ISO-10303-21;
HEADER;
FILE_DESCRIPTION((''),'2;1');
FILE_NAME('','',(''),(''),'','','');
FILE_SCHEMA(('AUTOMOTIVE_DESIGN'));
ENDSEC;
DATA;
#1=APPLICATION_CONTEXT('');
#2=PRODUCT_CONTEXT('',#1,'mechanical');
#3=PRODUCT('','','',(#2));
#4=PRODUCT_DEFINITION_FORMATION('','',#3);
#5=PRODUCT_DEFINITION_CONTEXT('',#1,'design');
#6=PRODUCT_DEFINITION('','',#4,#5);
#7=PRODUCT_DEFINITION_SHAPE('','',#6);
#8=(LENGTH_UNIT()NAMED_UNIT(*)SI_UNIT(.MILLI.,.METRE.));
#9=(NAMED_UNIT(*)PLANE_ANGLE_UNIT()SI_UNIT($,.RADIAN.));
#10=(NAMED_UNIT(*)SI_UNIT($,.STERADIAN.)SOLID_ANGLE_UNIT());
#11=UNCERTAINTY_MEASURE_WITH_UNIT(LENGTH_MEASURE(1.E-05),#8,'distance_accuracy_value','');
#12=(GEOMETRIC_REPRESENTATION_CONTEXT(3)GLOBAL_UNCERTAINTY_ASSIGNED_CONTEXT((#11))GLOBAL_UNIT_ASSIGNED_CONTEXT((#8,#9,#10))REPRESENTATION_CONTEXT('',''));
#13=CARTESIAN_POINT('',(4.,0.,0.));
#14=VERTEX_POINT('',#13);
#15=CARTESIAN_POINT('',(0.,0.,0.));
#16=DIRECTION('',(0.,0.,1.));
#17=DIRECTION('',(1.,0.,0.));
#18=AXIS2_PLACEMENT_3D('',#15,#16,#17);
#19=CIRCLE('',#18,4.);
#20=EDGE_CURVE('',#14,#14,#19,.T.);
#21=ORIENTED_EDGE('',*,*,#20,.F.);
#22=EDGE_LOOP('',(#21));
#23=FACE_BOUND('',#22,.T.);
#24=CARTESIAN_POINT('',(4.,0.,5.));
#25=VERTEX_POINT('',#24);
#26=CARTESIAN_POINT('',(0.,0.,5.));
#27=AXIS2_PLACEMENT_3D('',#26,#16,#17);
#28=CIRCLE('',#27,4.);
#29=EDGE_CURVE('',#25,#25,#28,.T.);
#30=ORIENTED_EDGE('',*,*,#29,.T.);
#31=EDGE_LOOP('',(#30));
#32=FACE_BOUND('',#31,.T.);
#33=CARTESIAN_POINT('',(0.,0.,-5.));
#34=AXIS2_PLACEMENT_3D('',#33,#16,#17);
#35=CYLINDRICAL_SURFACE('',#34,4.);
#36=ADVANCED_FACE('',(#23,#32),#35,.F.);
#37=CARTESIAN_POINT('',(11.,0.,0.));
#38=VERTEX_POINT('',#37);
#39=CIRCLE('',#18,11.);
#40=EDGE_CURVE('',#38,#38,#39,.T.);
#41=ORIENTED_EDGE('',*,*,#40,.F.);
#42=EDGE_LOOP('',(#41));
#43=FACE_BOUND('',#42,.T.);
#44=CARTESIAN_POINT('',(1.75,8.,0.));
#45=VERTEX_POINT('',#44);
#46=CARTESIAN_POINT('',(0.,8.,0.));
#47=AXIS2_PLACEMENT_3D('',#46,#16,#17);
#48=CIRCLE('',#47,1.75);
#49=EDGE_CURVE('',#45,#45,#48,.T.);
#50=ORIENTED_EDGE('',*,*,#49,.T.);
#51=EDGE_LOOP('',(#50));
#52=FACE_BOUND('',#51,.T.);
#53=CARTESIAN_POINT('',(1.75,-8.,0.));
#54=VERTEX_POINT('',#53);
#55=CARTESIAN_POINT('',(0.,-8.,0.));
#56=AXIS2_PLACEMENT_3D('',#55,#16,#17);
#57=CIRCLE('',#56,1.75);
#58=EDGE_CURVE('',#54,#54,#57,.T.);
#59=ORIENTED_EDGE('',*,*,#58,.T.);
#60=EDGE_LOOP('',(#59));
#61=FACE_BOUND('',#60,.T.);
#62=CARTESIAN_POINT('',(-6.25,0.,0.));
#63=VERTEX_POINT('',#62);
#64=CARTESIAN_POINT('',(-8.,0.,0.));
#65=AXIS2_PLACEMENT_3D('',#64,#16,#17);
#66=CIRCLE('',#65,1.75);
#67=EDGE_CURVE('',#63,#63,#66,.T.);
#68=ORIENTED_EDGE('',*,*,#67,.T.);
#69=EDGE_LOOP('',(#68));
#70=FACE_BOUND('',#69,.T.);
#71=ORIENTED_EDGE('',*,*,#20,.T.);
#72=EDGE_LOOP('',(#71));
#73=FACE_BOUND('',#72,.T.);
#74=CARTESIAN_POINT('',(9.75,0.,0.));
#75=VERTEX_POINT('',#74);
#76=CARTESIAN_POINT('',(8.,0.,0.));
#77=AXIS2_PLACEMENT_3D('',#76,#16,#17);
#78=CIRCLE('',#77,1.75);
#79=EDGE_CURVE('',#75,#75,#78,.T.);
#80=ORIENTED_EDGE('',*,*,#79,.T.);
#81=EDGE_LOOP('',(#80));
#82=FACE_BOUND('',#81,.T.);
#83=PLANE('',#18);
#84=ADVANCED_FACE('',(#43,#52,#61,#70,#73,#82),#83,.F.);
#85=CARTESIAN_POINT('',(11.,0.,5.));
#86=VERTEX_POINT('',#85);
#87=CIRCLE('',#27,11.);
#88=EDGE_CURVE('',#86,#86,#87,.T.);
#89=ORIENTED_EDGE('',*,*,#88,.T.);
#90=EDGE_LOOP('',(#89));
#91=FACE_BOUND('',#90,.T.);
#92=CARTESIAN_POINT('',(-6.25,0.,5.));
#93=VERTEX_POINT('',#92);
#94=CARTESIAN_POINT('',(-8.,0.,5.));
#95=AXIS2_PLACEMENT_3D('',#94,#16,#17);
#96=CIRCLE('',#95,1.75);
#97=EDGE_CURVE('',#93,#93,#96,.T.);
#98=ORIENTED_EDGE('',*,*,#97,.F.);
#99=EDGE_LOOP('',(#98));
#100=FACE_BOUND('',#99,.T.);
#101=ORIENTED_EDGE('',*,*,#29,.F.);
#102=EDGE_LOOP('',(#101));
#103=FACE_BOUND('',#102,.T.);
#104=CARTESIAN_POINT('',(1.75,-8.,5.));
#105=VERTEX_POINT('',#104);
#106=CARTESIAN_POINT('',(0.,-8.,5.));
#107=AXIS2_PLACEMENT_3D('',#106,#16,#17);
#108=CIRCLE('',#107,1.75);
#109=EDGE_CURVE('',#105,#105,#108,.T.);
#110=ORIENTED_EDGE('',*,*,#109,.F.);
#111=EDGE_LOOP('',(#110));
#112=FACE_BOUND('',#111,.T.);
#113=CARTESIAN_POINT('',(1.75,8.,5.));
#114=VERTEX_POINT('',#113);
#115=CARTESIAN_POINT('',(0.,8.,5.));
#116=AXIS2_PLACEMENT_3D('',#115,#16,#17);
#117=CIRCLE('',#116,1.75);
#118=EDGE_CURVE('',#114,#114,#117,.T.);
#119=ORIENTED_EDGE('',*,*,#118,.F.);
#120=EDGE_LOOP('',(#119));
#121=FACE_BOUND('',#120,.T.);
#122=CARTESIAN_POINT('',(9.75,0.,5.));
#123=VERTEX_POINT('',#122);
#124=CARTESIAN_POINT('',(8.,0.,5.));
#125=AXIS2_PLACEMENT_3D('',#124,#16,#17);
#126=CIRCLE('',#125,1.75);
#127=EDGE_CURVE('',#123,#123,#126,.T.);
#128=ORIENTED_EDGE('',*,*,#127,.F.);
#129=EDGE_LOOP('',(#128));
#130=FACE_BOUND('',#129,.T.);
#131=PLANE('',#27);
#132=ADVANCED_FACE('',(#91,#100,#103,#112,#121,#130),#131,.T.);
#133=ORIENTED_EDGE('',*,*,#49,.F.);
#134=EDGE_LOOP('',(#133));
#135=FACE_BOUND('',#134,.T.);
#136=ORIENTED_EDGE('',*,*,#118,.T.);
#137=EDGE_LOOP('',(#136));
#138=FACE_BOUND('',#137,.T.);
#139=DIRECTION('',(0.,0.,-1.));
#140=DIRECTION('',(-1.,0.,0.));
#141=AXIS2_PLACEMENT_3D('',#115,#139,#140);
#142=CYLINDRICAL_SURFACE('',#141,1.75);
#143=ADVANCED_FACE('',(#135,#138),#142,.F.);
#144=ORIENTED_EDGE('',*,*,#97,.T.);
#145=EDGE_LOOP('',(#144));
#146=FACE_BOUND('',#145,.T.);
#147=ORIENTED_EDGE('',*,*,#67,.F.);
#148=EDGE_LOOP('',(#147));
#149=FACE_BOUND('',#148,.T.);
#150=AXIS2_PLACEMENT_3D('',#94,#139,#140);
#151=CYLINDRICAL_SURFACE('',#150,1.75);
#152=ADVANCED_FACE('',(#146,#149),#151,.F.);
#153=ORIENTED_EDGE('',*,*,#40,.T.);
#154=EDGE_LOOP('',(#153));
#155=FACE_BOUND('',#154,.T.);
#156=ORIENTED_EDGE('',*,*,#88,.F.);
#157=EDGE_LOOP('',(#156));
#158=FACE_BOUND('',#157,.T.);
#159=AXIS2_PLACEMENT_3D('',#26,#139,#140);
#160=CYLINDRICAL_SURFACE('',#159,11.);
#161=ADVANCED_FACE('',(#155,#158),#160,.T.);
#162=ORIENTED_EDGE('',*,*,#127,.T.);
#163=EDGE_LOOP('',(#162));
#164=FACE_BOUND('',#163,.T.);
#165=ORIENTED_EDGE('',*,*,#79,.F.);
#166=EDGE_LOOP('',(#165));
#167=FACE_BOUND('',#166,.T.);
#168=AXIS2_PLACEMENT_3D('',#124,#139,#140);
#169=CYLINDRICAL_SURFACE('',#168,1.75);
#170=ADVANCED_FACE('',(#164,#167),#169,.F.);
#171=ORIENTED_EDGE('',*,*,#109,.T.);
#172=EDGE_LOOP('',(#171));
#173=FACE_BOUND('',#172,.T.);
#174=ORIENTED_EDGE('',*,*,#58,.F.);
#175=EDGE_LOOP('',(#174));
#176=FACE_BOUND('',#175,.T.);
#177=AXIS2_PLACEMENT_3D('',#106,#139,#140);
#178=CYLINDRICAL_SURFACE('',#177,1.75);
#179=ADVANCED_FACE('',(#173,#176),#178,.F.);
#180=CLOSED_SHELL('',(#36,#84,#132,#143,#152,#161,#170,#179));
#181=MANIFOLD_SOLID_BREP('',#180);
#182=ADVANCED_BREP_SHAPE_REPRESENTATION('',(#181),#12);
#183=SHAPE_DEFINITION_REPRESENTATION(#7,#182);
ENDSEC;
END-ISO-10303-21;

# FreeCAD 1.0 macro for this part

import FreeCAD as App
import Part
import Sketcher
from FreeCAD import Vector

doc = App.newDocument("Part")
params = doc.addObject("Spreadsheet::Sheet", "Params")
for row, (alias, value) in enumerate([
    ("sketch1_diameter", "22 mm"),
    ("sketch1_diameter2", "3.5 mm"),
    ("pad1_length", "5 mm"),
    ("sketch2_diameter", "8 mm"),
    ("pocket1_length", "10 mm"),
], start=1):
    params.set(f"A{row}", alias)
    params.set(f"B{row}", "=" + value)
    params.setAlias(f"B{row}", alias)

body = doc.addObject("PartDesign::Body", "Body")

# Sketch on XY plane
sketch1 = body.newObject("Sketcher::SketchObject", "Sketch")
sketch1.AttachmentSupport = (doc.getObject("XY_Plane"), [""])
sketch1.MapMode = "FlatFace"
sketch1.addGeometry([
    Part.Circle(Vector(0, 0, 0), Vector(0, 0, 1), 11),  # 0
    Part.Circle(Vector(0, -8, 0), Vector(0, 0, 1), 1.8),  # 1
    Part.Circle(Vector(-8, 0, 0), Vector(0, 0, 1), 1.8),  # 2
    Part.Circle(Vector(8, 0, 0), Vector(0, 0, 1), 1.8),  # 3
    Part.Circle(Vector(0, 8, 0), Vector(0, 0, 1), 1.8),  # 4
], False)
sketch1.addConstraint([
    Sketcher.Constraint("Coincident", 0, 3, -1, 1),
    Sketcher.Constraint("Equal", 1, 2),
    Sketcher.Constraint("Equal", 2, 3),
    Sketcher.Constraint("Equal", 3, 4),
    Sketcher.Constraint("Symmetric", 2, 3, 3, 3, -1, 1),
    Sketcher.Constraint("Symmetric", 1, 3, 4, 3, -1, 1),
    Sketcher.Constraint("PointOnObject", 1, 3, -2),
    Sketcher.Constraint("PointOnObject", 2, 3, -1),
    Sketcher.Constraint("Diameter", 0, 22.0),
    Sketcher.Constraint("Diameter", 1, 3.5),
    Sketcher.Constraint("DistanceY", 1, 3, -1, 1, 8.0),
    Sketcher.Constraint("DistanceX", 2, 3, -1, 1, 8.0),
])
sketch1.setExpression("Constraints[8]", "Params.sketch1_diameter")
sketch1.setExpression("Constraints[9]", "Params.sketch1_diameter2")
pad1 = body.newObject("PartDesign::Pad", "Pad")
pad1.Profile = sketch1
pad1.setExpression("Length", "Params.pad1_length")

# Sketch on XY plane
sketch2 = body.newObject("Sketcher::SketchObject", "Sketch001")
sketch2.AttachmentSupport = (doc.getObject("XY_Plane"), [""])
sketch2.MapMode = "FlatFace"
sketch2.AttachmentOffset = App.Placement(Vector(0, 0, 5), App.Rotation())
sketch2.addGeometry(Part.Circle(Vector(0, 0, 0), Vector(0, 0, 1), 4), False)
sketch2.addConstraint([
    Sketcher.Constraint("Coincident", 0, 3, -1, 1),
    Sketcher.Constraint("Diameter", 0, 8.0),
])
sketch2.setExpression("Constraints[1]", "Params.sketch2_diameter")
pocket1 = body.newObject("PartDesign::Pocket", "Pocket")
pocket1.Profile = sketch2
pocket1.setExpression("Length", "Params.pocket1_length")

doc.recompute()
